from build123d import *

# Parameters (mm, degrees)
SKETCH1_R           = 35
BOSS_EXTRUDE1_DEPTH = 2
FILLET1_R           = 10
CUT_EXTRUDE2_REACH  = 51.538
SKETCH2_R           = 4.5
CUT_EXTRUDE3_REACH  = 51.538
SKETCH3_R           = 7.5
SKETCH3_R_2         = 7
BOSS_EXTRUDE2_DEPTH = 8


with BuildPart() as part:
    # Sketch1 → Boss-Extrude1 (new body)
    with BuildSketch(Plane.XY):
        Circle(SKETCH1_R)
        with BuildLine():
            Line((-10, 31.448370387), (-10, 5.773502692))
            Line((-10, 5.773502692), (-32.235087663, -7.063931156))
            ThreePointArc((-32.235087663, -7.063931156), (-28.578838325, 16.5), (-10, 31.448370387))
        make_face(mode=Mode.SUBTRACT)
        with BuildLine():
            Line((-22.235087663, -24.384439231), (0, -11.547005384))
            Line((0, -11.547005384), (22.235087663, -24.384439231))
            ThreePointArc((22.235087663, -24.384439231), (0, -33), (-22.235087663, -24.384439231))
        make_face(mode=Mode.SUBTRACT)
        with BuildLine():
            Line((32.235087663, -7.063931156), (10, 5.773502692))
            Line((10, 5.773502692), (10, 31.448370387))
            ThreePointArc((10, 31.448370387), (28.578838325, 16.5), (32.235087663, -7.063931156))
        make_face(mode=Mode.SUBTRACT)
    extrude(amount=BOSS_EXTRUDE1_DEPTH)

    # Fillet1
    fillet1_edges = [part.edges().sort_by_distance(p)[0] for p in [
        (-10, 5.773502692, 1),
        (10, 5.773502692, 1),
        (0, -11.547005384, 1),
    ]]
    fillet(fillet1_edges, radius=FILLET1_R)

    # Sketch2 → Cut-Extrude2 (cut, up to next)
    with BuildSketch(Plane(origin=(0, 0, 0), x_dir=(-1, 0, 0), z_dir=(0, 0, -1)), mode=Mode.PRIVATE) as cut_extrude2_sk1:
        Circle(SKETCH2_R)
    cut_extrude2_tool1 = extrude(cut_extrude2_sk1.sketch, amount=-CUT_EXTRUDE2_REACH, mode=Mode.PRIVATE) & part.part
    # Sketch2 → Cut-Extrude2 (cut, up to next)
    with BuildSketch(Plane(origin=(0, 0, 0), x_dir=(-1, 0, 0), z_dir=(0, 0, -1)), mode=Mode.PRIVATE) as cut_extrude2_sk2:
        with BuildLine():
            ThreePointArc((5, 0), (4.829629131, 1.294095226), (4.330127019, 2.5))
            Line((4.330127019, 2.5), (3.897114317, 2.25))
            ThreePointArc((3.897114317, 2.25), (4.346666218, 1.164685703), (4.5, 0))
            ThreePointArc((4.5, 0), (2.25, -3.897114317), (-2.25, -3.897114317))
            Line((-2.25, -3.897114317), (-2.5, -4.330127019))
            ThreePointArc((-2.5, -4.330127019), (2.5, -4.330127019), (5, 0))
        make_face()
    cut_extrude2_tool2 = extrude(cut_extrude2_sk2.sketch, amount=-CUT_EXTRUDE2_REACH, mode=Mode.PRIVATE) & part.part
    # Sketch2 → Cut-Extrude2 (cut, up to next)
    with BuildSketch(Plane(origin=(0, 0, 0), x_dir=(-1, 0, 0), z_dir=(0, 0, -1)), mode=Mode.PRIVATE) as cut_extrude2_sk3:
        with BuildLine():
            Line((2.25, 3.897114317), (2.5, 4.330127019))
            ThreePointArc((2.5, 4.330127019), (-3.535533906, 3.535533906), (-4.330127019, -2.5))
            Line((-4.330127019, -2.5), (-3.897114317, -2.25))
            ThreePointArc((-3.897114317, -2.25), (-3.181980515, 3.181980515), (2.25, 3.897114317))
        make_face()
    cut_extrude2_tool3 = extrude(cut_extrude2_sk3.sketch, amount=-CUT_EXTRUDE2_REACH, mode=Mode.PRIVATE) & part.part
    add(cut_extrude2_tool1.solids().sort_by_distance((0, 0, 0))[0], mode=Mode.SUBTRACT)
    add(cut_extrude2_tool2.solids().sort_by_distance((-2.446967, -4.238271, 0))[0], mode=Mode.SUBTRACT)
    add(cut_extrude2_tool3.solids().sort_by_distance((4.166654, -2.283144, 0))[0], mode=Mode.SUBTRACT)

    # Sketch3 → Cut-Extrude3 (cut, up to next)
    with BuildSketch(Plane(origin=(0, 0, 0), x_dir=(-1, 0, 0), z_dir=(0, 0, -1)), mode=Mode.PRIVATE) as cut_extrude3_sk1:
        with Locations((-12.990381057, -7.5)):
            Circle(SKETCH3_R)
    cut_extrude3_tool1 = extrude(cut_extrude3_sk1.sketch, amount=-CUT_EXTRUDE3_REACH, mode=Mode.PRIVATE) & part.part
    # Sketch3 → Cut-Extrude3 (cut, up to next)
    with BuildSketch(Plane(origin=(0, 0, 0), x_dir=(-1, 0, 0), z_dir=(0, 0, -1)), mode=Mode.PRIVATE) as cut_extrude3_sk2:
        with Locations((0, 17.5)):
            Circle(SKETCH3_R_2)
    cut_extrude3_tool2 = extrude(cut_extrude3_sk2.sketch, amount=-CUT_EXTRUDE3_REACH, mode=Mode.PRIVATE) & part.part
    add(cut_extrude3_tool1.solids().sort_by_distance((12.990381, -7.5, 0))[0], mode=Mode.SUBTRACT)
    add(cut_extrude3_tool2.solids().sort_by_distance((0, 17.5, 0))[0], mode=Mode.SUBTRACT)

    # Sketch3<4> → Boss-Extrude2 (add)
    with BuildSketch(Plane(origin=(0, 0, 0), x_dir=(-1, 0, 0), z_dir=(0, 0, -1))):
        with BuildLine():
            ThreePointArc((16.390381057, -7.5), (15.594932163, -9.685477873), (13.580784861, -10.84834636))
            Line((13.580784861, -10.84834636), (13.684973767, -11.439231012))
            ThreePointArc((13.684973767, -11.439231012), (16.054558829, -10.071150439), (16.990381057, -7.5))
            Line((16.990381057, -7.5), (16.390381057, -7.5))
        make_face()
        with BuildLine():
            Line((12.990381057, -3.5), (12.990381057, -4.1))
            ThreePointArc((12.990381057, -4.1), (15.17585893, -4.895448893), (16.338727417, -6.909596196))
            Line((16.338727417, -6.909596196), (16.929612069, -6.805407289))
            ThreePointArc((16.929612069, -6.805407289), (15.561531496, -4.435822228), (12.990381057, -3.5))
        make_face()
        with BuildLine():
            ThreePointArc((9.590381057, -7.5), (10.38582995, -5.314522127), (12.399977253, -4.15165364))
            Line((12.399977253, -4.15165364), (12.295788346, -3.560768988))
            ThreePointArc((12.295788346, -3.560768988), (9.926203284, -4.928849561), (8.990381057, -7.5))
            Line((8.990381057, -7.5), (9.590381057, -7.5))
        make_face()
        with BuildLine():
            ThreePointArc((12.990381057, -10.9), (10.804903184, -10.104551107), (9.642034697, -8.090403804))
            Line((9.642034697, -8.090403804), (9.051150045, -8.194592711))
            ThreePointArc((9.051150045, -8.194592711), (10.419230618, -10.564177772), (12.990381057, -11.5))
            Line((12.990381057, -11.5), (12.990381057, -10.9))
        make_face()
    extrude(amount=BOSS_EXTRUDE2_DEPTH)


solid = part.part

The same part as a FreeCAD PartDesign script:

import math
import FreeCAD as App
import Part
import Sketcher

V = App.Vector
Q = App.Units.Quantity


def edges_at(feature, points):
    """Names of the edges that pass closest to the given points."""
    edges = feature.Shape.Edges
    near = lambda p: min(range(len(edges)), key=lambda i: edges[i].distToShape(Part.Vertex(*p))[0])
    return sorted({f"Edge{near(p) + 1}" for p in points})

doc = App.newDocument("Part")
params = doc.addObject("Spreadsheet::Sheet", "Params")
for row, (alias, value) in enumerate([
    ("sketch1_diameter", "70 mm"),
    ("sketch1_radius", "33 mm"),
    ("pad1_length", "2 mm"),
    ("fillet_radius", "10 mm"),
    ("sketch2_diameter", "9 mm"),
    ("sketch3_radius", "5 mm"),
    ("sketch3_radius2", "4.5 mm"),
    ("pocket2_length", "2 mm"),
    ("sketch4_radius", "5 mm"),
    ("sketch4_radius2", "4.5 mm"),
    ("pocket3_length", "2 mm"),
    ("sketch5_diameter", "15 mm"),
    ("sketch6_diameter", "14 mm"),
    ("sketch7_radius", "4 mm"),
    ("sketch7_radius2", "3.4 mm"),
    ("pad2_length", "8 mm"),
], start=1):
    params.set(f"A{row}", alias)
    params.set(f"B{row}", "=" + value)
    params.setAlias(f"B{row}", alias)

body = doc.addObject("PartDesign::Body", "Body")

# Sketch on XY plane
sketch1 = body.newObject("Sketcher::SketchObject", "Sketch")
sketch1.AttachmentSupport = (doc.getObject("XY_Plane"), [""])
sketch1.MapMode = "FlatFace"
sketch1.addGeometry([
    Part.Circle(V(0, 0, 0), V(0, 0, 1), 35),  # 0
    Part.ArcOfCircle(Part.Circle(V(0, 0, 0), V(0, 0, 1), 33), math.radians(-132), math.radians(-48)),  # 1
    Part.LineSegment(V(-22, -24, 0), V(0, -12, 0)),  # 2
    Part.LineSegment(V(0, -12, 0), V(22, -24, 0)),  # 3
    Part.ArcOfCircle(Part.Circle(V(0, 0, 0), V(0, 0, 1), 33), math.radians(108), math.radians(192)),  # 4
    Part.LineSegment(V(-10, 31, 0), V(-10, 6, 0)),  # 5
    Part.LineSegment(V(-10, 6, 0), V(-32, -7, 0)),  # 6
    Part.ArcOfCircle(Part.Circle(V(0, 0, 0), V(0, 0, 1), 33), math.radians(-12), math.radians(72)),  # 7
    Part.LineSegment(V(32, -7, 0), V(10, 6, 0)),  # 8
    Part.LineSegment(V(10, 6, 0), V(10, 31, 0)),  # 9
], False)
sketch1.addConstraint([
    Sketcher.Constraint("Coincident", 1, 1, 2, 1),
    Sketcher.Constraint("Coincident", 2, 2, 3, 1),
    Sketcher.Constraint("Coincident", 3, 2, 1, 2),
    Sketcher.Constraint("Coincident", 4, 1, 5, 1),
    Sketcher.Constraint("Coincident", 5, 2, 6, 1),
    Sketcher.Constraint("Coincident", 6, 2, 4, 2),
    Sketcher.Constraint("Coincident", 7, 1, 8, 1),
    Sketcher.Constraint("Coincident", 8, 2, 9, 1),
    Sketcher.Constraint("Coincident", 9, 2, 7, 2),
    Sketcher.Constraint("Vertical", 5),
    Sketcher.Constraint("Vertical", 9),
    Sketcher.Constraint("Coincident", 0, 3, -1, 1),
    Sketcher.Constraint("Coincident", 1, 3, -1, 1),
    Sketcher.Constraint("Coincident", 4, 3, -1, 1),
    Sketcher.Constraint("Coincident", 7, 3, -1, 1),
    Sketcher.Constraint("Equal", 1, 4),
    Sketcher.Constraint("Equal", 4, 7),
    Sketcher.Constraint("Symmetric", 5, 2, 8, 2, -2),
    Sketcher.Constraint("PointOnObject", 2, 2, -2),
    Sketcher.Constraint("Parallel", 2, 6),
    Sketcher.Constraint("Parallel", 3, 8),
    Sketcher.Constraint("Horizontal", 1, 1, 3, 2),
    Sketcher.Constraint("Equal", 3, 6),
    Sketcher.Constraint("Diameter", 0, Q("70 mm")),
    Sketcher.Constraint("Radius", 1, Q("33 mm")),
    Sketcher.Constraint("Angle", 2, Q("30 deg")),
    Sketcher.Constraint("DistanceX", 4, 1, -1, 1, Q("10 mm")),
    Sketcher.Constraint("DistanceY", 5, 2, 5, 1, Q("25.674868 mm")),
])
sketch1.setExpression("Constraints[23]", "Params.sketch1_diameter")
sketch1.setExpression("Constraints[24]", "Params.sketch1_radius")
pad1 = body.newObject("PartDesign::Pad", "Pad")
pad1.Profile = sketch1
pad1.setExpression("Length", "Params.pad1_length")
doc.recompute()

fillet = body.newObject("PartDesign::Fillet", "Fillet")
fillet.Base = (pad1, edges_at(pad1, [(-10, 5.774, 1), (10, 5.774, 1), (0, -11.547, 1)]))
fillet.setExpression("Radius", "Params.fillet_radius")

# Sketch on XY plane
sketch2 = body.newObject("Sketcher::SketchObject", "Sketch001")
sketch2.AttachmentSupport = (doc.getObject("XY_Plane"), [""])
sketch2.MapMode = "FlatFace"
sketch2.addGeometry(Part.Circle(V(0, 0, 0), V(0, 0, 1), 4.5), False)
sketch2.addConstraint([
    Sketcher.Constraint("Coincident", 0, 3, -1, 1),
    Sketcher.Constraint("Diameter", 0, Q("9 mm")),
])
sketch2.setExpression("Constraints[1]", "Params.sketch2_diameter")
pocket1 = body.newObject("PartDesign::Pocket", "Pocket")
pocket1.Profile = sketch2
pocket1.Type = "UpToFirst"
pocket1.Reversed = True

# Sketch on XY plane
sketch3 = body.newObject("Sketcher::SketchObject", "Sketch002")
sketch3.AttachmentSupport = (doc.getObject("XY_Plane"), [""])
sketch3.MapMode = "FlatFace"
sketch3.addGeometry([
    Part.ArcOfCircle(Part.Circle(V(0, 0, 0), V(0, 0, 1), 5), math.radians(150), math.radians(180)),  # 0
    Part.LineSegment(V(-4.3, 2.5, 0), V(-3.9, 2.2, 0)),  # 1
    Part.ArcOfCircle(Part.Circle(V(0, 0, 0), V(0, 0, 1), 4.5), math.radians(150), math.radians(180)),  # 2
    Part.ArcOfCircle(Part.Circle(V(0, 0, 0), V(0, 0, 1), 4.5), math.radians(180), math.radians(300)),  # 3
    Part.LineSegment(V(2.2, -3.9, 0), V(2.5, -4.3, 0)),  # 4
    Part.ArcOfCircle(Part.Circle(V(0, 0, 0), V(0, 0, 1), 5), math.radians(180), math.radians(300)),  # 5
], False)
sketch3.addConstraint([
    Sketcher.Constraint("Coincident", 0, 1, 1, 1),
    Sketcher.Constraint("Coincident", 1, 2, 2, 1),
    Sketcher.Constraint("Tangent", 2, 2, 3, 1),
    Sketcher.Constraint("Coincident", 3, 2, 4, 1),
    Sketcher.Constraint("Coincident", 4, 2, 5, 2),
    Sketcher.Constraint("Tangent", 5, 1, 0, 2),
    Sketcher.Constraint("Coincident", 0, 3, -1, 1),
    Sketcher.Constraint("Coincident", 2, 3, -1, 1),
    Sketcher.Constraint("Equal", 2, 3),
    Sketcher.Constraint("Equal", 0, 5),
    Sketcher.Constraint("PointOnObject", 2, 2, -1),
    Sketcher.Constraint("PointOnObject", 5, 1, -1),
    Sketcher.Constraint("Radius", 0, Q("5 mm")),
    Sketcher.Constraint("Radius", 2, Q("4.5 mm")),
    Sketcher.Constraint("Angle", 1, Q("-30 deg")),
    Sketcher.Constraint("Angle", 4, Q("-60 deg")),
    Sketcher.Constraint("DistanceY", -1, 1, 0, 1, Q("2.5 mm")),
    Sketcher.Constraint("DistanceX", -1, 1, 4, 2, Q("2.5 mm")),
])
sketch3.setExpression("Constraints[12]", "Params.sketch3_radius")
sketch3.setExpression("Constraints[13]", "Params.sketch3_radius2")
pocket2 = body.newObject("PartDesign::Pocket", "Pocket001")
pocket2.Profile = sketch3
pocket2.setExpression("Length", "Params.pocket2_length")
pocket2.Reversed = True

# Sketch on XY plane
sketch4 = body.newObject("Sketcher::SketchObject", "Sketch003")
sketch4.AttachmentSupport = (doc.getObject("XY_Plane"), [""])
sketch4.MapMode = "FlatFace"
sketch4.addGeometry([
    Part.LineSegment(V(-2.2, 3.9, 0), V(-2.5, 4.3, 0)),
    Part.ArcOfCircle(Part.Circle(V(0, 0, 0), V(0, 0, 1), 5), math.radians(-30), math.radians(120)),
    Part.LineSegment(V(4.3, -2.5, 0), V(3.9, -2.2, 0)),
    Part.ArcOfCircle(Part.Circle(V(0, 0, 0), V(0, 0, 1), 4.5), math.radians(-30), math.radians(120)),
], False)
sketch4.addConstraint([
    Sketcher.Constraint("Coincident", 0, 2, 1, 2),
    Sketcher.Constraint("Coincident", 1, 1, 2, 1),
    Sketcher.Constraint("Coincident", 2, 2, 3, 1),
    Sketcher.Constraint("Coincident", 3, 2, 0, 1),
    Sketcher.Constraint("Coincident", 1, 3, -1, 1),
    Sketcher.Constraint("Coincident", 3, 3, -1, 1),
    Sketcher.Constraint("Radius", 1, Q("5 mm")),
    Sketcher.Constraint("Radius", 3, Q("4.5 mm")),
    Sketcher.Constraint("Angle", 0, Q("120 deg")),
    Sketcher.Constraint("Angle", 2, Q("150 deg")),
    Sketcher.Constraint("DistanceX", 0, 2, -1, 1, Q("2.5 mm")),
    Sketcher.Constraint("DistanceY", 1, 1, -1, 1, Q("2.5 mm")),
])
sketch4.setExpression("Constraints[6]", "Params.sketch4_radius")
sketch4.setExpression("Constraints[7]", "Params.sketch4_radius2")
pocket3 = body.newObject("PartDesign::Pocket", "Pocket002")
pocket3.Profile = sketch4
pocket3.setExpression("Length", "Params.pocket3_length")
pocket3.Reversed = True

# Sketch on XY plane
sketch5 = body.newObject("Sketcher::SketchObject", "Sketch004")
sketch5.AttachmentSupport = (doc.getObject("XY_Plane"), [""])
sketch5.MapMode = "FlatFace"
sketch5.addGeometry(Part.Circle(V(13, -8, 0), V(0, 0, 1), 8), False)
sketch5.addConstraint([
    Sketcher.Constraint("Diameter", 0, Q("15 mm")),
    Sketcher.Constraint("DistanceY", 0, 3, -1, 1, Q("7.5 mm")),
    Sketcher.Constraint("DistanceX", -1, 1, 0, 3, Q("12.990381 mm")),
])
sketch5.setExpression("Constraints[0]", "Params.sketch5_diameter")
pocket4 = body.newObject("PartDesign::Pocket", "Pocket003")
pocket4.Profile = sketch5
pocket4.Type = "UpToFirst"
pocket4.Reversed = True

# Sketch on XY plane
sketch6 = body.newObject("Sketcher::SketchObject", "Sketch005")
sketch6.AttachmentSupport = (doc.getObject("XY_Plane"), [""])
sketch6.MapMode = "FlatFace"
sketch6.addGeometry(Part.Circle(V(0, 18, 0), V(0, 0, 1), 7), False)
sketch6.addConstraint([
    Sketcher.Constraint("PointOnObject", 0, 3, -2),
    Sketcher.Constraint("Diameter", 0, Q("14 mm")),
    Sketcher.Constraint("DistanceY", -1, 1, 0, 3, Q("17.5 mm")),
])
sketch6.setExpression("Constraints[1]", "Params.sketch6_diameter")
pocket5 = body.newObject("PartDesign::Pocket", "Pocket004")
pocket5.Profile = sketch6
pocket5.Type = "UpToFirst"
pocket5.Reversed = True

# Sketch on XY plane
sketch7 = body.newObject("Sketcher::SketchObject", "Sketch006")
sketch7.AttachmentSupport = (doc.getObject("XY_Plane"), [""])
sketch7.MapMode = "FlatFace"
sketch7.addGeometry([
    Part.ArcOfCircle(Part.Circle(V(-13, -7.5, 0), V(0, 0, 1), 3.4), math.radians(-180), math.radians(-100)),  # 0
    Part.LineSegment(V(-13.6, -10.8, 0), V(-13.7, -11.4, 0)),  # 1
    Part.ArcOfCircle(Part.Circle(V(-13, -7.5, 0), V(0, 0, 1), 4), math.radians(180), math.radians(260)),  # 2
    Part.LineSegment(V(-17, -7.5, 0), V(-16.4, -7.5, 0)),  # 3
    Part.LineSegment(V(-13, -3.5, 0), V(-13, -4.1, 0)),  # 4
    Part.ArcOfCircle(Part.Circle(V(-13, -7.5, 0), V(0, 0, 1), 3.4), math.radians(90), math.radians(170)),  # 5
    Part.LineSegment(V(-16.3, -6.9, 0), V(-16.9, -6.8, 0)),  # 6
    Part.ArcOfCircle(Part.Circle(V(-13, -7.5, 0), V(0, 0, 1), 4), math.radians(90), math.radians(170)),  # 7
    Part.ArcOfCircle(Part.Circle(V(-13, -7.5, 0), V(0, 0, 1), 3.4), math.radians(0), math.radians(80)),  # 8
    Part.LineSegment(V(-12.4, -4.2, 0), V(-12.3, -3.6, 0)),  # 9
    Part.ArcOfCircle(Part.Circle(V(-13, -7.5, 0), V(0, 0, 1), 4), math.radians(0), math.radians(80)),  # 10
    Part.LineSegment(V(-9, -7.5, 0), V(-9.6, -7.5, 0)),  # 11
    Part.ArcOfCircle(Part.Circle(V(-13, -7.5, 0), V(0, 0, 1), 3.4), math.radians(-90), math.radians(-10)),  # 12
    Part.LineSegment(V(-9.6, -8.1, 0), V(-9.1, -8.2, 0)),  # 13
    Part.ArcOfCircle(Part.Circle(V(-13, -7.5, 0), V(0, 0, 1), 4), math.radians(-90), math.radians(-10)),  # 14
    Part.LineSegment(V(-13, -11.5, 0), V(-13, -10.9, 0)),  # 15
], False)
sketch7.addConstraint([
    Sketcher.Constraint("Coincident", 0, 2, 1, 1),
    Sketcher.Constraint("Coincident", 1, 2, 2, 2),
    Sketcher.Constraint("Coincident", 2, 1, 3, 1),
    Sketcher.Constraint("Coincident", 3, 2, 0, 1),
    Sketcher.Constraint("Coincident", 4, 2, 5, 1),
    Sketcher.Constraint("Coincident", 5, 2, 6, 1),
    Sketcher.Constraint("Coincident", 6, 2, 7, 2),
    Sketcher.Constraint("Coincident", 7, 1, 4, 1),
    Sketcher.Constraint("Coincident", 8, 2, 9, 1),
    Sketcher.Constraint("Coincident", 9, 2, 10, 2),
    Sketcher.Constraint("Coincident", 10, 1, 11, 1),
    Sketcher.Constraint("Coincident", 11, 2, 8, 1),
    Sketcher.Constraint("Coincident", 12, 2, 13, 1),
    Sketcher.Constraint("Coincident", 13, 2, 14, 2),
    Sketcher.Constraint("Coincident", 14, 1, 15, 1),
    Sketcher.Constraint("Coincident", 15, 2, 12, 1),
    Sketcher.Constraint("Horizontal", 3),
    Sketcher.Constraint("Vertical", 4),
    Sketcher.Constraint("Horizontal", 11),
    Sketcher.Constraint("Vertical", 15),
    Sketcher.Constraint("Coincident", 2, 3, 0, 3),
    Sketcher.Constraint("Coincident", 5, 3, 0, 3),
    Sketcher.Constraint("Coincident", 7, 3, 0, 3),
    Sketcher.Constraint("Coincident", 8, 3, 0, 3),
    Sketcher.Constraint("Coincident", 10, 3, 0, 3),
    Sketcher.Constraint("Coincident", 12, 3, 0, 3),
    Sketcher.Constraint("Coincident", 14, 3, 0, 3),
    Sketcher.Constraint("Equal", 0, 5),
    Sketcher.Constraint("Equal", 2, 7),
    Sketcher.Constraint("Equal", 5, 8),
    Sketcher.Constraint("Equal", 7, 10),
    Sketcher.Constraint("Equal", 8, 12),
    Sketcher.Constraint("Equal", 10, 14),
    Sketcher.Constraint("Perpendicular", 1, 6),
    Sketcher.Constraint("Perpendicular", 6, 9),
    Sketcher.Constraint("Perpendicular", 9, 13),
    Sketcher.Constraint("Horizontal", 14, 3, 2, 1),
    Sketcher.Constraint("Horizontal", 3, 2, 10, 1),
    Sketcher.Constraint("Vertical", 14, 3, 4, 2),
    Sketcher.Constraint("Vertical", 7, 1, 14, 1),
    Sketcher.Constraint("Radius", 2, Q("4 mm")),
    Sketcher.Constraint("Radius", 0, Q("3.4 mm")),
    Sketcher.Constraint("Angle", 1, Q("-100 deg")),
    Sketcher.Constraint("DistanceY", 0, 3, -1, 1, Q("7.5 mm")),
    Sketcher.Constraint("DistanceX", 0, 3, -1, 1, Q("12.990381 mm")),
    Sketcher.Constraint("DistanceY", 1, 2, -1, 1, Q("11.439231 mm")),
    Sketcher.Constraint("DistanceX", 9, 2, -1, 1, Q("12.295788 mm")),
    Sketcher.Constraint("DistanceX", 13, 2, -1, 1, Q("9.05115 mm")),
    Sketcher.Constraint("DistanceX", 2, 1, 6, 2, Q("0.060769 mm")),
])
sketch7.setExpression("Constraints[40]", "Params.sketch7_radius")
sketch7.setExpression("Constraints[41]", "Params.sketch7_radius2")
pad2 = body.newObject("PartDesign::Pad", "Pad001")
pad2.Profile = sketch7
pad2.setExpression("Length", "Params.pad2_length")
pad2.Reversed = True

doc.recompute()
